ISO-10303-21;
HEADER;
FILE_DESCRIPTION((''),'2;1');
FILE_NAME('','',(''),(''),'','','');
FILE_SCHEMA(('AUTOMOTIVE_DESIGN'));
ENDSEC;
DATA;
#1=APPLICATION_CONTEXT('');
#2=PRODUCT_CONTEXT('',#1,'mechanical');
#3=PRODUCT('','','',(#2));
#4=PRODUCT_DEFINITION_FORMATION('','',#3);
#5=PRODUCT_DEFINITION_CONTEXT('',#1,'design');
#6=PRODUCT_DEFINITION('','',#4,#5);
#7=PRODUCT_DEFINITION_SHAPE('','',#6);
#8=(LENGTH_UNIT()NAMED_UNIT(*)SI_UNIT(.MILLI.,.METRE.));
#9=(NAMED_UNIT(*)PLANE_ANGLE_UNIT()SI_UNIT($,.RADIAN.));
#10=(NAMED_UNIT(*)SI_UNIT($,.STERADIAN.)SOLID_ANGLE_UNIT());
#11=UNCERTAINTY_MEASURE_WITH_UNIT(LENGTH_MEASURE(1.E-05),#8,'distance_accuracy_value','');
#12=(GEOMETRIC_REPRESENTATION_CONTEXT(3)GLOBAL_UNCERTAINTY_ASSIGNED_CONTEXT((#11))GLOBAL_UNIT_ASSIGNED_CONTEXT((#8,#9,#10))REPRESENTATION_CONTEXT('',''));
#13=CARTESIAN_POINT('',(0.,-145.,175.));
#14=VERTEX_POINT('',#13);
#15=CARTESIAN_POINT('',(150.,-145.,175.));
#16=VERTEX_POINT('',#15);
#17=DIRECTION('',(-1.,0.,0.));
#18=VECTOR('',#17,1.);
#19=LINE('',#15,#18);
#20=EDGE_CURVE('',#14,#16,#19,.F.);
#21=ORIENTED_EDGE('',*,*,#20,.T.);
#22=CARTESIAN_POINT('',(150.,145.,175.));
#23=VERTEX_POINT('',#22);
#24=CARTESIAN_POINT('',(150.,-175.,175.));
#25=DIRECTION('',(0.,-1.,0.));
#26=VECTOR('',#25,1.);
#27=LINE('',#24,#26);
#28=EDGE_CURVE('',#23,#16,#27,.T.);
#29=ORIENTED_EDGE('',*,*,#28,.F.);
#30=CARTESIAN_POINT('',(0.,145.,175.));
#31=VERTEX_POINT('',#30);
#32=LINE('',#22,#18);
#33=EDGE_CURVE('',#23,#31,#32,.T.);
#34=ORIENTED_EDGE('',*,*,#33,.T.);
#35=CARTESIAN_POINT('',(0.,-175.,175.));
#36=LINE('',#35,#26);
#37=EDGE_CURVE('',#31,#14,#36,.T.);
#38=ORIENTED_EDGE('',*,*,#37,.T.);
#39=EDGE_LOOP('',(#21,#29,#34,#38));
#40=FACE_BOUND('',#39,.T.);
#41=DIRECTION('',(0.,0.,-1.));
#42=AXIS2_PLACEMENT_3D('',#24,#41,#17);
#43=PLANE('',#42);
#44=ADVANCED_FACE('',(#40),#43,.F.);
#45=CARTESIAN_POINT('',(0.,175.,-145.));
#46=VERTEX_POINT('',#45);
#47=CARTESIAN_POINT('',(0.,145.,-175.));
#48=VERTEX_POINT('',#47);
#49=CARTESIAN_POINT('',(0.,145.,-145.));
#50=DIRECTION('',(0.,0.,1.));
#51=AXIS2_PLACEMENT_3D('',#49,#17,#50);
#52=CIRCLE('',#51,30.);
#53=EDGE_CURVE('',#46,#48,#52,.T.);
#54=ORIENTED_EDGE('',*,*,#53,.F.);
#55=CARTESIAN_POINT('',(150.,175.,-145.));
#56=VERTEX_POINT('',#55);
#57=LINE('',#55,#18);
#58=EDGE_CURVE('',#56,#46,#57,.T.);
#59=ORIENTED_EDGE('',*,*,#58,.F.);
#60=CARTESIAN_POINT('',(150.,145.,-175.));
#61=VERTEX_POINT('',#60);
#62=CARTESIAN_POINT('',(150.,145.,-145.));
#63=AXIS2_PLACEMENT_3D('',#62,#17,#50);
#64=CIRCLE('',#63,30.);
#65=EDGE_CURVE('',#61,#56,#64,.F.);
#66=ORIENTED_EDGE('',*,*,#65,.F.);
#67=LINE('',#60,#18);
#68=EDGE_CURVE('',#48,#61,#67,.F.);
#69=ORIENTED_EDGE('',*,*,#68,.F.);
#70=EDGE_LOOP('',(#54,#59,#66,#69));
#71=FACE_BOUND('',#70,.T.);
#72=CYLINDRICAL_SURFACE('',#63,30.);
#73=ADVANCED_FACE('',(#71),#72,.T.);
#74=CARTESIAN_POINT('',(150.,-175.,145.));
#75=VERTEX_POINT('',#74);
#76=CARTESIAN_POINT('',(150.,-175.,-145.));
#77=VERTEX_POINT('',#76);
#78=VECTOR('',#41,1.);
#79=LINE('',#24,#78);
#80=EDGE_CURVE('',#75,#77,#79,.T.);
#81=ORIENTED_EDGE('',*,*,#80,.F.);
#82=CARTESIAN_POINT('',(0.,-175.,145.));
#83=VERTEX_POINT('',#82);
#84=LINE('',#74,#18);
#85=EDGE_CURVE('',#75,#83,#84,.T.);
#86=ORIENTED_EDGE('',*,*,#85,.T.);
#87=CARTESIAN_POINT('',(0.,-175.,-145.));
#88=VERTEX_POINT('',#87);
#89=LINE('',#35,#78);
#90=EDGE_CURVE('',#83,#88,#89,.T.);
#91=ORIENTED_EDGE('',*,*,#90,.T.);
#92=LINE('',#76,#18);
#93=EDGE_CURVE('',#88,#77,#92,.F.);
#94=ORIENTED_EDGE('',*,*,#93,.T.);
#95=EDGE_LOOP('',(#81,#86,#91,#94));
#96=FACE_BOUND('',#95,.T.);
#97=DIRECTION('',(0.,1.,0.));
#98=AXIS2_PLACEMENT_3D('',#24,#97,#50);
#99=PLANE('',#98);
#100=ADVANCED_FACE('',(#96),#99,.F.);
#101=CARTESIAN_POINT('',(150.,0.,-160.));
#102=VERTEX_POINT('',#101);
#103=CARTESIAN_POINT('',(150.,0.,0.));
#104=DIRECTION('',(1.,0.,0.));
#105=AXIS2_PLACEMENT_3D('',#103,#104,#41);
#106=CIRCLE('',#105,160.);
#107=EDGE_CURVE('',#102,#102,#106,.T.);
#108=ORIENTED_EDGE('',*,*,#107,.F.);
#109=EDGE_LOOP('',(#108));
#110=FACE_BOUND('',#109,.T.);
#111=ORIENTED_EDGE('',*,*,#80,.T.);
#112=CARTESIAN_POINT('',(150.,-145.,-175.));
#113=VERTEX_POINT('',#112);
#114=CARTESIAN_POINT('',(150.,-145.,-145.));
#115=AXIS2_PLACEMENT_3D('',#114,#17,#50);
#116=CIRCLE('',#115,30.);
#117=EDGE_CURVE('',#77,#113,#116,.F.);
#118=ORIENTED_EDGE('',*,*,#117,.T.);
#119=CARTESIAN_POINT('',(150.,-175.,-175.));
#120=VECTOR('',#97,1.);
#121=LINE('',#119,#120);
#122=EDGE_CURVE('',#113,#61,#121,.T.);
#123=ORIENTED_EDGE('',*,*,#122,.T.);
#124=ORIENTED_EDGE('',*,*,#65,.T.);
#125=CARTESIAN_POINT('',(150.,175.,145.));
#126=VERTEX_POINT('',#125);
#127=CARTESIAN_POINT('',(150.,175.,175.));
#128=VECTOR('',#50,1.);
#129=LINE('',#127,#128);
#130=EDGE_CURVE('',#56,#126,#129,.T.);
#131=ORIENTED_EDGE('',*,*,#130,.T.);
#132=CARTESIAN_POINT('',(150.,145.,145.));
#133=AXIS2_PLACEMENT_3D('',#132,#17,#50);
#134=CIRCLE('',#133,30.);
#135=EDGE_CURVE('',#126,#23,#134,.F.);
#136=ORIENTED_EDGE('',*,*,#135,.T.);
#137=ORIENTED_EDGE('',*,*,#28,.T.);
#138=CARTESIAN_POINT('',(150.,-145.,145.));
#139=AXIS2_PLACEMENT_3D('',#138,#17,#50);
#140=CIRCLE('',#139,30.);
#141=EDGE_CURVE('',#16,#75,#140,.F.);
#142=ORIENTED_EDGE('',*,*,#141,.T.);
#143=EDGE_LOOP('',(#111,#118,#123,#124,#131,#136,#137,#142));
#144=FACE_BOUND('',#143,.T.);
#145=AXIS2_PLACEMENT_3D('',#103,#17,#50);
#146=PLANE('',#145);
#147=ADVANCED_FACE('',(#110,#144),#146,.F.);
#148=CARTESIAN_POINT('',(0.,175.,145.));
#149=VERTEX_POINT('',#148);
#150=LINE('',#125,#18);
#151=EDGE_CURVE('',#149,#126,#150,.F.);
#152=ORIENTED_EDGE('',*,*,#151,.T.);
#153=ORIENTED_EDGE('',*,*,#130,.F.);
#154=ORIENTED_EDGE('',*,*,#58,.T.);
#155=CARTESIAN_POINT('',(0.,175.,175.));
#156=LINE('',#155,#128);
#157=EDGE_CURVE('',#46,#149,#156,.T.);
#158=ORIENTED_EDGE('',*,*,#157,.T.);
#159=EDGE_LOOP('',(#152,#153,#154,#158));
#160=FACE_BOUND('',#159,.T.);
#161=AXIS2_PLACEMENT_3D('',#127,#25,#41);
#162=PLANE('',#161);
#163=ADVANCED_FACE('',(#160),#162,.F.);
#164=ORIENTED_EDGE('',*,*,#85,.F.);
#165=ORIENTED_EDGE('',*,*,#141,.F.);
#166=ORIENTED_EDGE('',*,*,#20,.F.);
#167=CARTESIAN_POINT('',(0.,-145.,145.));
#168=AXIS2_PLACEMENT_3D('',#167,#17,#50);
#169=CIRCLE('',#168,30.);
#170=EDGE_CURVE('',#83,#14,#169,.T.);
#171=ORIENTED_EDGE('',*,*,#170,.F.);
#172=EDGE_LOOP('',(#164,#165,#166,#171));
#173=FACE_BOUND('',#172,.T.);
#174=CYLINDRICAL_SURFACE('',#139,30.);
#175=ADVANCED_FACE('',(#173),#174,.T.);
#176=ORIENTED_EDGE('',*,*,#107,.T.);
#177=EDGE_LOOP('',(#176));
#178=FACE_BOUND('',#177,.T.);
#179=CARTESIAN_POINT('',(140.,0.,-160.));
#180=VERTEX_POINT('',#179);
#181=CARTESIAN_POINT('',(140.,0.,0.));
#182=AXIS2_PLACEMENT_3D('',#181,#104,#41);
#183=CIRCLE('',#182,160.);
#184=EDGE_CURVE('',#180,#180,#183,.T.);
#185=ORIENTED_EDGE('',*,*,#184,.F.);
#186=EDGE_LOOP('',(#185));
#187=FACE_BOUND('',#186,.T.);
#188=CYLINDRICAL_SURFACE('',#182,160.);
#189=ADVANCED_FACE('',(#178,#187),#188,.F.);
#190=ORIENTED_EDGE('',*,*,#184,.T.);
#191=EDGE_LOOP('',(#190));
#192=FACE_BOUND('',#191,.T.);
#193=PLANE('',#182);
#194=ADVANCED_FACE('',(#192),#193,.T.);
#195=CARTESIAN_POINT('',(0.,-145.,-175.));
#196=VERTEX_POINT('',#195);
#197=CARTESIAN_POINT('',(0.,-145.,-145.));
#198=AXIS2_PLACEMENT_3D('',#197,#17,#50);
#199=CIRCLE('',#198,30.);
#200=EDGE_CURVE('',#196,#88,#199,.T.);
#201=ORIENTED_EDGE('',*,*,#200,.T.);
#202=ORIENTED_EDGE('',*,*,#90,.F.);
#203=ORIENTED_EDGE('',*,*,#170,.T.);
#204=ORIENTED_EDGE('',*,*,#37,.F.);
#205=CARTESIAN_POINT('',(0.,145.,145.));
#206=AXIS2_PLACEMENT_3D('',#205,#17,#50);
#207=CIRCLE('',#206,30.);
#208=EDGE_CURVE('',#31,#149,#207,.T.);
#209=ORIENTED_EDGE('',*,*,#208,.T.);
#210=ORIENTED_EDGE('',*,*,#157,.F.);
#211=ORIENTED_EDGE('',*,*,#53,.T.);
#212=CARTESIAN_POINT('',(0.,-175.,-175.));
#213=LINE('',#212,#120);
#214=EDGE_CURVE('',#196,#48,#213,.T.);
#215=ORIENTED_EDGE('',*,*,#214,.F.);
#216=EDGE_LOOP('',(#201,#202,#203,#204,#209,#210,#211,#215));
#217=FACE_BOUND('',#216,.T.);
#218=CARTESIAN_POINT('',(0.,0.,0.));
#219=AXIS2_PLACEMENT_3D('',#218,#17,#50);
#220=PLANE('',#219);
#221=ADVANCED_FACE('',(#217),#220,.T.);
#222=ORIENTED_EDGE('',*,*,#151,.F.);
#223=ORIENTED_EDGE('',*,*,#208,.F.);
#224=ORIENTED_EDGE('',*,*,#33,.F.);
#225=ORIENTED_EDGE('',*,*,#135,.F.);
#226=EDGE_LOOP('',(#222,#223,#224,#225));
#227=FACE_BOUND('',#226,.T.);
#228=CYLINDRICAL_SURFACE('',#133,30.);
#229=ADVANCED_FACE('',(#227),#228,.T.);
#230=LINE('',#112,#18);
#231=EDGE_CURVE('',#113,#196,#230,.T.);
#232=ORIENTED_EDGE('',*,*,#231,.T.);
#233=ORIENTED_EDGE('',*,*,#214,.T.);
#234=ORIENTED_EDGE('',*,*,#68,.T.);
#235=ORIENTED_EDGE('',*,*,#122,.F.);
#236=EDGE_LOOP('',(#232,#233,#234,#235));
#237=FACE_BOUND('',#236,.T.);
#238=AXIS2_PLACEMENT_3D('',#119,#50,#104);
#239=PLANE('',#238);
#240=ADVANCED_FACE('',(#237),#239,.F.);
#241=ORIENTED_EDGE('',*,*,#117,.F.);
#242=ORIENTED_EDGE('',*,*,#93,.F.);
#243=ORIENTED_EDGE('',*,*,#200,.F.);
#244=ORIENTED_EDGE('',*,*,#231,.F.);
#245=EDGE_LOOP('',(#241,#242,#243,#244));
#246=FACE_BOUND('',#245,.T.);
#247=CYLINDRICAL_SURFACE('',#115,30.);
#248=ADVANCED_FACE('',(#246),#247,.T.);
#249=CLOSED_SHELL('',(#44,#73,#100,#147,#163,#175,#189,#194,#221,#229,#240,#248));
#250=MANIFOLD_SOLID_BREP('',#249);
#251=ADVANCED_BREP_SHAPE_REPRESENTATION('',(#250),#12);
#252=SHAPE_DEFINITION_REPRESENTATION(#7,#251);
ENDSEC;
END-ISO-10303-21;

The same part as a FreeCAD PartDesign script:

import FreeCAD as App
import Part
import Sketcher
from FreeCAD import Vector


def edges_at(feature, points):
    """Names of the edges that pass closest to the given points."""
    edges = feature.Shape.Edges
    near = lambda p: min(range(len(edges)), key=lambda i: edges[i].distToShape(Part.Vertex(*p))[0])
    return sorted({f"Edge{near(p) + 1}" for p in points})

doc = App.newDocument("Part")
body = doc.addObject("PartDesign::Body", "Body")

sketch1 = doc.addObject("Sketcher::SketchObject", "Sketch")
body.addObject(sketch1)
sketch1.AttachmentSupport = (doc.YZ_Plane, [""])
sketch1.MapMode = "FlatFace"
sketch1.addGeometry([
    Part.LineSegment(Vector(175, 175, 0), Vector(-175, 175, 0)),
    Part.LineSegment(Vector(-175, 175, 0), Vector(-175, -175, 0)),
    Part.LineSegment(Vector(-175, -175, 0), Vector(175, -175, 0)),
    Part.LineSegment(Vector(175, -175, 0), Vector(175, 175, 0)),
], False)
sketch1.addConstraint([
    Sketcher.Constraint("Coincident", 0, 2, 1, 1),
    Sketcher.Constraint("Coincident", 1, 2, 2, 1),
    Sketcher.Constraint("Coincident", 2, 2, 3, 1),
    Sketcher.Constraint("Coincident", 3, 2, 0, 1),
    Sketcher.Constraint("Horizontal", 0),
    Sketcher.Constraint("Vertical", 1),
    Sketcher.Constraint("Horizontal", 2),
    Sketcher.Constraint("Vertical", 3),
    Sketcher.Constraint("Symmetric", 0, 2, 2, 2, -1, 1),
    Sketcher.Constraint("Equal", 2, 1),
    Sketcher.Constraint("DistanceX", 0, 2, 0, 1, 350.0),
])
pad1 = doc.addObject("PartDesign::Pad", "Pad")
body.addObject(pad1)
pad1.Profile = sketch1
pad1.Length = 150

sketch2 = doc.addObject("Sketcher::SketchObject", "Sketch001")
body.addObject(sketch2)
sketch2.AttachmentSupport = (doc.YZ_Plane, [""])
sketch2.MapMode = "FlatFace"
sketch2.AttachmentOffset = App.Placement(Vector(0, 0, 150), App.Rotation())
sketch2.addGeometry(Part.Circle(Vector(0, 0, 0), Vector(0, 0, 1), 160), False)
sketch2.addConstraint([
    Sketcher.Constraint("Coincident", 0, 3, -1, 1),
    Sketcher.Constraint("Diameter", 0, 320.0),
])
pocket1 = doc.addObject("PartDesign::Pocket", "Pocket")
body.addObject(pocket1)
pocket1.Profile = sketch2
pocket1.Length = 10
doc.recompute()

fillet = doc.addObject("PartDesign::Fillet", "Fillet")
body.addObject(fillet)
fillet.Base = (pocket1, edges_at(pocket1, [
    (75, -175, -175),
    (75, -175, 175),
    (75, 175, 175),
    (75, 175, -175),
]))
fillet.Radius = 30

doc.recompute()
